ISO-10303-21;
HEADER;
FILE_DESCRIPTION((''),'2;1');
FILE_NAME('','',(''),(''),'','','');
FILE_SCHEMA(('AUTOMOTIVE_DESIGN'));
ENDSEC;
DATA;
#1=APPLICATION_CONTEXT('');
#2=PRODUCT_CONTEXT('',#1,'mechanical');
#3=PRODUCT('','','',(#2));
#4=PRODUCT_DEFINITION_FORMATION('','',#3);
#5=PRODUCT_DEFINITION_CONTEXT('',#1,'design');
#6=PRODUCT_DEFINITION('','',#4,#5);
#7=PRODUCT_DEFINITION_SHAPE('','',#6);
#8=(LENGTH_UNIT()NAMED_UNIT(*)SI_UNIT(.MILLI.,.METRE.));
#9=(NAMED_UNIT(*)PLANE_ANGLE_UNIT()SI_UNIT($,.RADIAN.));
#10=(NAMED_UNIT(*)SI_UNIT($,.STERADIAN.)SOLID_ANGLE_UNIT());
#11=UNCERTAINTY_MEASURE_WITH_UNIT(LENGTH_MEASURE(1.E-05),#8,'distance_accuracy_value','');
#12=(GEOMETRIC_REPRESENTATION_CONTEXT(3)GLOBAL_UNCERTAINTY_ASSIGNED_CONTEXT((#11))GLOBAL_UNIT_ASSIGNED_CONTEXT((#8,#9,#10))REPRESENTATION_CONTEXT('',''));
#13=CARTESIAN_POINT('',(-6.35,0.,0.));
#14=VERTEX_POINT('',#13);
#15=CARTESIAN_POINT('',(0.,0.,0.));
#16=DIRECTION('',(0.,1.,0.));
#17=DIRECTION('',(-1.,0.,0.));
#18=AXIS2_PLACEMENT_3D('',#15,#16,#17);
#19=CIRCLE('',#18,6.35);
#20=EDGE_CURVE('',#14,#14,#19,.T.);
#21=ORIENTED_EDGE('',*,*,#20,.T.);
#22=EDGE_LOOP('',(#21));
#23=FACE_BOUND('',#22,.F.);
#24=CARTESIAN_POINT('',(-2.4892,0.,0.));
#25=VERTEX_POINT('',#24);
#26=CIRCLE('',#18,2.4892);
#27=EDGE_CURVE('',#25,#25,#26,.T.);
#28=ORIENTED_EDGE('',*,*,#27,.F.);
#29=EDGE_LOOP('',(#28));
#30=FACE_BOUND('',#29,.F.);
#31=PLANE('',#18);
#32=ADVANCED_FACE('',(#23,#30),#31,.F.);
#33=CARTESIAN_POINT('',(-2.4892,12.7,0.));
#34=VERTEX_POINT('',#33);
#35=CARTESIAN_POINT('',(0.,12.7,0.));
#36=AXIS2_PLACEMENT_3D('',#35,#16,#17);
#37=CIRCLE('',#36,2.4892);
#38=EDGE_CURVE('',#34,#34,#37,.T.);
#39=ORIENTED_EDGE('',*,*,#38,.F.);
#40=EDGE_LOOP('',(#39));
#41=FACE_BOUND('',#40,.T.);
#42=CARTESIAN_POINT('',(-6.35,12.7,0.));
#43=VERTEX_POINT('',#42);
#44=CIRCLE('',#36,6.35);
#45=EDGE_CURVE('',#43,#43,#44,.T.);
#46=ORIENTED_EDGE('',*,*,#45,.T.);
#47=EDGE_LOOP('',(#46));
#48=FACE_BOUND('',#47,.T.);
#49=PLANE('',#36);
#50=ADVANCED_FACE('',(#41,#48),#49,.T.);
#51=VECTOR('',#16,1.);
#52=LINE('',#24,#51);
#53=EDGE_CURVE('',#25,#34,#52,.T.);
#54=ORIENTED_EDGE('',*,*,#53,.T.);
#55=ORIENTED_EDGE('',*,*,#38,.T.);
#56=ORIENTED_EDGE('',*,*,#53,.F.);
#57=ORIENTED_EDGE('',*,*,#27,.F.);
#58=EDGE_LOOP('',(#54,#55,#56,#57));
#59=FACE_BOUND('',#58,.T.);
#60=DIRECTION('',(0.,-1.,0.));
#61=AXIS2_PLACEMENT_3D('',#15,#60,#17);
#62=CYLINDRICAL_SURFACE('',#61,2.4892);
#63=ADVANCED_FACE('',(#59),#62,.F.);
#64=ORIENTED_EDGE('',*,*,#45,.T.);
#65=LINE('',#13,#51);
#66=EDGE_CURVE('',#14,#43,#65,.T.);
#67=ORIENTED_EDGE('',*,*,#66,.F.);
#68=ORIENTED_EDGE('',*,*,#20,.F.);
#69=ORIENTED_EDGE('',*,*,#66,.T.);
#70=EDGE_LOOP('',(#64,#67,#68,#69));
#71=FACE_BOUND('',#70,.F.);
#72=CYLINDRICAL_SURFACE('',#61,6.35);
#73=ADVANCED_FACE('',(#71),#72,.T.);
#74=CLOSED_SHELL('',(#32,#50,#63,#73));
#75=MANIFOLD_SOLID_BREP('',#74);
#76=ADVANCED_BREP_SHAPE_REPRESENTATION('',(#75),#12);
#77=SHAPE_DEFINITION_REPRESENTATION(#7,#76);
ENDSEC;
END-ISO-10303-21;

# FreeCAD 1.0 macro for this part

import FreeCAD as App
import Part
import Sketcher
from FreeCAD import Vector
Q = App.Units.Quantity

doc = App.newDocument("Part")
params = doc.addObject("Spreadsheet::Sheet", "Params")
for row, (alias, value) in enumerate([
    ("sketch1_diameter", "0.5 in"),
    ("sketch1_diameter2", "0.196 in"),
    ("pad1_length", "0.5 in"),
], start=1):
    params.set(f"A{row}", alias)
    params.set(f"B{row}", "=" + value)
    params.setAlias(f"B{row}", alias)

body = doc.addObject("PartDesign::Body", "Body")

sketch1 = body.newObject("Sketcher::SketchObject", "Sketch")
sketch1.AttachmentSupport = (doc.getObject("XZ_Plane"), [""])
sketch1.MapMode = "FlatFace"
sketch1.addGeometry(Part.Circle(Vector(0, 0, 0), Vector(0, 0, 1), 6.3), False)
sketch1.addGeometry(Part.Circle(Vector(0, 0, 0), Vector(0, 0, 1), 2.5), False)
sketch1.addConstraint(Sketcher.Constraint("Coincident", 0, 3, -1, 1))
sketch1.addConstraint(Sketcher.Constraint("Coincident", 1, 3, -1, 1))
sketch1.addConstraint(Sketcher.Constraint("Diameter", 0, Q("0.5 in")))
sketch1.addConstraint(Sketcher.Constraint("Diameter", 1, Q("0.196 in")))
sketch1.setExpression("Constraints[2]", "Params.sketch1_diameter")
sketch1.setExpression("Constraints[3]", "Params.sketch1_diameter2")
pad1 = body.newObject("PartDesign::Pad", "Pad")
pad1.Profile = sketch1
pad1.setExpression("Length", "Params.pad1_length")
pad1.Reversed = True

doc.recompute()
